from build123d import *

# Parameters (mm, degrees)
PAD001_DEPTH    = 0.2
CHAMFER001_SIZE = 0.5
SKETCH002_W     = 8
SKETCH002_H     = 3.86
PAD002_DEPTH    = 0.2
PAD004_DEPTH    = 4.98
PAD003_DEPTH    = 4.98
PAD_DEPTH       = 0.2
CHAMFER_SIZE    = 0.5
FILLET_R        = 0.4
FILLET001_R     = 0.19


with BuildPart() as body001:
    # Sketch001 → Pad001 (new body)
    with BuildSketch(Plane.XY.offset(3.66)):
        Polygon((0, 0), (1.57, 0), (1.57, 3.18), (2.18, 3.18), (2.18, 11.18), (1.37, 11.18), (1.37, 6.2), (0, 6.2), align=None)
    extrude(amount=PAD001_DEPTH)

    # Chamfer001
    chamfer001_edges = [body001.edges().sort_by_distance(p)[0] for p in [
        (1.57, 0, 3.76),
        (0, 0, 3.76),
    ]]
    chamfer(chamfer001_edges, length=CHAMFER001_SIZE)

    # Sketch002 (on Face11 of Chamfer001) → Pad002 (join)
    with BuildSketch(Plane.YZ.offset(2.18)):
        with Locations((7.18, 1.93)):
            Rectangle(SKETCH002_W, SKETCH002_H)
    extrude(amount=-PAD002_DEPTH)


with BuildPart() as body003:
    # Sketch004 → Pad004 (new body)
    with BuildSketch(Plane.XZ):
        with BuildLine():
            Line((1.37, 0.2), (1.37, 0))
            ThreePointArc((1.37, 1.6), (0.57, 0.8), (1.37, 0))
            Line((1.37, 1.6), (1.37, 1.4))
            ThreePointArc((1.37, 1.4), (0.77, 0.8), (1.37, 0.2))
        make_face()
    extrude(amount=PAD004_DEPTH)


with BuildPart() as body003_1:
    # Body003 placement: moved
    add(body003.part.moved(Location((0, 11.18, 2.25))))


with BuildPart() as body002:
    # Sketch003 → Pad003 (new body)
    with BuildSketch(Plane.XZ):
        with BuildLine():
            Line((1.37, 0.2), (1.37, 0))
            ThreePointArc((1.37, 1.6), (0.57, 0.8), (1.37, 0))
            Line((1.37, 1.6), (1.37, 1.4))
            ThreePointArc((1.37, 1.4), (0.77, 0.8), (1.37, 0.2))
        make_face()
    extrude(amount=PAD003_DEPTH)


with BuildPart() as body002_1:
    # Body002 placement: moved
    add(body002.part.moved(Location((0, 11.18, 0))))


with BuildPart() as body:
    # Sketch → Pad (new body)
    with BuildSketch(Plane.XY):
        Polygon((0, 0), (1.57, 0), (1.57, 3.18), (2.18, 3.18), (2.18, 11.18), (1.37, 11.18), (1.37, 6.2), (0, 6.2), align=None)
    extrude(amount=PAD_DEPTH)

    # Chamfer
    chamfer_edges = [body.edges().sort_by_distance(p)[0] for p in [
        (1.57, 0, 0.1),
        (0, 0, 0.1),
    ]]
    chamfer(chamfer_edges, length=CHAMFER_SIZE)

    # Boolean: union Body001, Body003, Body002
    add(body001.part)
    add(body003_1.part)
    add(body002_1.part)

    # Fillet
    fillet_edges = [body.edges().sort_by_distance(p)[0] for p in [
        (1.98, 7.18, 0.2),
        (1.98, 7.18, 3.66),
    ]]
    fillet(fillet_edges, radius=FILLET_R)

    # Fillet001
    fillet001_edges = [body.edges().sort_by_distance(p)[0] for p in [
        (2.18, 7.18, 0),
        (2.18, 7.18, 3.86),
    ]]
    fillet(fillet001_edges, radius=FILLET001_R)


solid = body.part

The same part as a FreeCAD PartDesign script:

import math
import FreeCAD as App
import Part
import Sketcher


def edges_at(feature, points):
    """Names of the edges that pass closest to the given points."""
    edges = feature.Shape.Edges
    near = lambda p: min(range(len(edges)), key=lambda i: edges[i].distToShape(Part.Vertex(*p))[0])
    return sorted({f"Edge{near(p) + 1}" for p in points})


def add_polygon(sketch, points):
    """Adds a closed chain of lines whose ends are joined by coincident constraints."""
    first, n = sketch.GeometryCount, len(points)
    for a, b in zip(points, points[1:] + points[:1]):
        sketch.addGeometry(Part.LineSegment(App.Vector(*a, 0), App.Vector(*b, 0)), False)
    for i in range(n):
        sketch.addConstraint(Sketcher.Constraint("Coincident", first + i, 2, first + (i + 1) % n, 1))

doc = App.newDocument("Part")
params = doc.addObject("Spreadsheet::Sheet", "Params")
for row, (alias, value) in enumerate([
    ("sketch1_height", "8 mm"),
    ("sketch1_height2", "6.2 mm"),
    ("sketch1_width", "1.57 mm"),
    ("sketch1_width2", "0.61 mm"),
    ("sketch1_width3", "0.81 mm"),
    ("pad1_length", "0.2 mm"),
    ("chamfer_size", "0.5 mm"),
    ("sketch2_width", "8 mm"),
    ("sketch2_height", "3.86 mm"),
    ("pad2_length", "0.2 mm"),
    ("sketch3_radius", "0.6 mm"),
    ("sketch3_radius2", "0.8 mm"),
    ("pad3_length", "4.98 mm"),
    ("sketch4_radius", "0.6 mm"),
    ("sketch4_radius2", "0.8 mm"),
    ("pad4_length", "4.98 mm"),
    ("sketch5_height", "8 mm"),
    ("sketch5_height2", "6.2 mm"),
    ("sketch5_width", "1.57 mm"),
    ("sketch5_width2", "0.61 mm"),
    ("sketch5_width3", "0.81 mm"),
    ("pad5_length", "0.2 mm"),
    ("chamfer2_size", "0.5 mm"),
    ("fillet_radius", "0.4 mm"),
    ("fillet2_radius", "0.19 mm"),
], start=1):
    params.set(f"A{row}", alias)
    params.set(f"B{row}", "=" + value)
    params.setAlias(f"B{row}", alias)

body = doc.addObject("PartDesign::Body", "Body")

# Sketch on XY plane
sketch1 = body.newObject("Sketcher::SketchObject", "Sketch")
sketch1.AttachmentSupport = (doc.getObject("XY_Plane"), [""])
sketch1.MapMode = "FlatFace"
sketch1.AttachmentOffset = App.Placement(App.Vector(0, 0, 3.66), App.Rotation())
add_polygon(sketch1, [(0, 0), (1.6, 0), (1.6, 3.2), (2.2, 3.2), (2.2, 11.2), (1.4, 11.2), (1.4, 6.2), (0, 6.2)])  # lines 0-7
sketch1.addConstraint(Sketcher.Constraint("Horizontal", 0))
sketch1.addConstraint(Sketcher.Constraint("Vertical", 1))
sketch1.addConstraint(Sketcher.Constraint("Horizontal", 2))
sketch1.addConstraint(Sketcher.Constraint("Vertical", 3))
sketch1.addConstraint(Sketcher.Constraint("Horizontal", 4))
sketch1.addConstraint(Sketcher.Constraint("Vertical", 5))
sketch1.addConstraint(Sketcher.Constraint("Horizontal", 6))
sketch1.addConstraint(Sketcher.Constraint("Vertical", 7))
sketch1.addConstraint(Sketcher.Constraint("Coincident", 7, 2, -1, 1))
sketch1.addConstraint(Sketcher.Constraint("DistanceY", 3, 1, 3, 2, 8.0))
sketch1.addConstraint(Sketcher.Constraint("DistanceY", 7, 2, 7, 1, 6.2))
sketch1.addConstraint(Sketcher.Constraint("DistanceX", 0, 1, 0, 2, 1.57))
sketch1.addConstraint(Sketcher.Constraint("DistanceX", 2, 1, 2, 2, 0.61))
sketch1.addConstraint(Sketcher.Constraint("DistanceX", 4, 2, 4, 1, 0.81))
sketch1.addConstraint(Sketcher.Constraint("DistanceY", 1, 1, 1, 2, 3.18))
sketch1.setExpression("Constraints[17]", "Params.sketch1_height")
sketch1.setExpression("Constraints[18]", "Params.sketch1_height2")
sketch1.setExpression("Constraints[19]", "Params.sketch1_width")
sketch1.setExpression("Constraints[20]", "Params.sketch1_width2")
sketch1.setExpression("Constraints[21]", "Params.sketch1_width3")
pad1 = body.newObject("PartDesign::Pad", "Pad")
pad1.Profile = sketch1
pad1.setExpression("Length", "Params.pad1_length")
doc.recompute()

chamfer = body.newObject("PartDesign::Chamfer", "Chamfer")
chamfer.Base = (pad1, edges_at(pad1, [(1.57, 0, 3.76), (0, 0, 3.76)]))
chamfer.setExpression("Size", "Params.chamfer_size")

# Sketch on YZ plane
sketch2 = body.newObject("Sketcher::SketchObject", "Sketch001")
sketch2.AttachmentSupport = (doc.getObject("YZ_Plane"), [""])
sketch2.MapMode = "FlatFace"
sketch2.AttachmentOffset = App.Placement(App.Vector(0, 0, 2.18), App.Rotation())
add_polygon(sketch2, [(3.2, 3.9), (3.2, 0), (11.2, 0), (11.2, 3.9)])  # lines 0-3
sketch2.addConstraint(Sketcher.Constraint("Vertical", 0))
sketch2.addConstraint(Sketcher.Constraint("Horizontal", 1))
sketch2.addConstraint(Sketcher.Constraint("Vertical", 2))
sketch2.addConstraint(Sketcher.Constraint("Horizontal", 3))
sketch2.addConstraint(Sketcher.Constraint("PointOnObject", 0, 2, -1))
sketch2.addConstraint(Sketcher.Constraint("DistanceX", 1, 1, 1, 2, 8.0))
sketch2.addConstraint(Sketcher.Constraint("DistanceY", 0, 2, 0, 1, 3.86))
sketch2.addConstraint(Sketcher.Constraint("DistanceX", -1, 1, 0, 2, 3.18))
sketch2.setExpression("Constraints[9]", "Params.sketch2_width")
sketch2.setExpression("Constraints[10]", "Params.sketch2_height")
pad2 = body.newObject("PartDesign::Pad", "Pad001")
pad2.Profile = sketch2
pad2.setExpression("Length", "Params.pad2_length")
pad2.Reversed = True
body2 = doc.addObject("PartDesign::Body", "Body001")

# Sketch on XZ plane
sketch3 = body2.newObject("Sketcher::SketchObject", "Sketch002")
sketch3.AttachmentSupport = (doc.getObject("XZ_Plane001"), [""])
sketch3.MapMode = "FlatFace"
sketch3.addGeometry(Part.LineSegment(App.Vector(1.37, 0, 0), App.Vector(1.37, 0.2, 0)), False)
sketch3.addGeometry(Part.ArcOfCircle(Part.Circle(App.Vector(1.37, 0.8, 0), App.Vector(0, 0, 1), 0.6), math.radians(90), math.radians(270)), False)
sketch3.addGeometry(Part.LineSegment(App.Vector(1.37, 1.4, 0), App.Vector(1.37, 1.6, 0)), False)
sketch3.addGeometry(Part.ArcOfCircle(Part.Circle(App.Vector(1.37, 0.8, 0), App.Vector(0, 0, 1), 0.8), math.radians(90), math.radians(270)), False)
sketch3.addConstraint(Sketcher.Constraint("Coincident", 0, 2, 1, 2))
sketch3.addConstraint(Sketcher.Constraint("Coincident", 1, 1, 2, 1))
sketch3.addConstraint(Sketcher.Constraint("Coincident", 2, 2, 3, 1))
sketch3.addConstraint(Sketcher.Constraint("Coincident", 3, 2, 0, 1))
sketch3.addConstraint(Sketcher.Constraint("Vertical", 0))
sketch3.addConstraint(Sketcher.Constraint("Vertical", 2))
sketch3.addConstraint(Sketcher.Constraint("Coincident", 3, 3, 1, 3))
sketch3.addConstraint(Sketcher.Constraint("PointOnObject", 3, 2, -1))
sketch3.addConstraint(Sketcher.Constraint("Vertical", 3, 3, 0, 2))
sketch3.addConstraint(Sketcher.Constraint("Vertical", 0, 2, 1, 1))
sketch3.addConstraint(Sketcher.Constraint("Radius", 1, 0.6))
sketch3.addConstraint(Sketcher.Constraint("Radius", 3, 0.8))
sketch3.addConstraint(Sketcher.Constraint("DistanceX", -1, 1, 1, 3, 1.37))
sketch3.setExpression("Constraints[10]", "Params.sketch3_radius")
sketch3.setExpression("Constraints[11]", "Params.sketch3_radius2")
pad3 = body2.newObject("PartDesign::Pad", "Pad002")
pad3.Profile = sketch3
pad3.setExpression("Length", "Params.pad3_length")
body3 = doc.addObject("PartDesign::Body", "Body002")
doc.recompute()

body2.Placement = App.Placement(App.Vector(0, 11.18, 2.25), App.Rotation(App.Vector(0, 0, 1), 0))
boolean = body3.newObject("PartDesign::Boolean", "Boolean")
boolean.Type = "Fuse"
boolean.addObjects([body2])
body4 = doc.addObject("PartDesign::Body", "Body003")

# Sketch on XZ plane
sketch4 = body4.newObject("Sketcher::SketchObject", "Sketch003")
sketch4.AttachmentSupport = (doc.getObject("XZ_Plane003"), [""])
sketch4.MapMode = "FlatFace"
sketch4.addGeometry(Part.LineSegment(App.Vector(1.37, 0, 0), App.Vector(1.37, 0.2, 0)), False)
sketch4.addGeometry(Part.ArcOfCircle(Part.Circle(App.Vector(1.37, 0.8, 0), App.Vector(0, 0, 1), 0.6), math.radians(90), math.radians(270)), False)
sketch4.addGeometry(Part.LineSegment(App.Vector(1.37, 1.4, 0), App.Vector(1.37, 1.6, 0)), False)
sketch4.addGeometry(Part.ArcOfCircle(Part.Circle(App.Vector(1.37, 0.8, 0), App.Vector(0, 0, 1), 0.8), math.radians(90), math.radians(270)), False)
sketch4.addConstraint(Sketcher.Constraint("Coincident", 0, 2, 1, 2))
sketch4.addConstraint(Sketcher.Constraint("Coincident", 1, 1, 2, 1))
sketch4.addConstraint(Sketcher.Constraint("Coincident", 2, 2, 3, 1))
sketch4.addConstraint(Sketcher.Constraint("Coincident", 3, 2, 0, 1))
sketch4.addConstraint(Sketcher.Constraint("Vertical", 0))
sketch4.addConstraint(Sketcher.Constraint("Vertical", 2))
sketch4.addConstraint(Sketcher.Constraint("Coincident", 3, 3, 1, 3))
sketch4.addConstraint(Sketcher.Constraint("PointOnObject", 3, 2, -1))
sketch4.addConstraint(Sketcher.Constraint("Vertical", 3, 3, 0, 2))
sketch4.addConstraint(Sketcher.Constraint("Vertical", 0, 2, 1, 1))
sketch4.addConstraint(Sketcher.Constraint("Radius", 1, 0.6))
sketch4.addConstraint(Sketcher.Constraint("Radius", 3, 0.8))
sketch4.addConstraint(Sketcher.Constraint("DistanceX", -1, 1, 1, 3, 1.37))
sketch4.setExpression("Constraints[10]", "Params.sketch4_radius")
sketch4.setExpression("Constraints[11]", "Params.sketch4_radius2")
pad4 = body4.newObject("PartDesign::Pad", "Pad003")
pad4.Profile = sketch4
pad4.setExpression("Length", "Params.pad4_length")
body5 = doc.addObject("PartDesign::Body", "Body004")
doc.recompute()

body4.Placement = App.Placement(App.Vector(0, 11.18, 0), App.Rotation(App.Vector(0, 0, 1), 0))
boolean2 = body5.newObject("PartDesign::Boolean", "Boolean001")
boolean2.Type = "Fuse"
boolean2.addObjects([body4])
body6 = doc.addObject("PartDesign::Body", "Body005")

# Sketch on XY plane
sketch5 = body6.newObject("Sketcher::SketchObject", "Sketch004")
sketch5.AttachmentSupport = (doc.getObject("XY_Plane005"), [""])
sketch5.MapMode = "FlatFace"
add_polygon(sketch5, [(0, 0), (1.6, 0), (1.6, 3.2), (2.2, 3.2), (2.2, 11.2), (1.4, 11.2), (1.4, 6.2), (0, 6.2)])  # lines 0-7
sketch5.addConstraint(Sketcher.Constraint("Horizontal", 0))
sketch5.addConstraint(Sketcher.Constraint("Vertical", 1))
sketch5.addConstraint(Sketcher.Constraint("Horizontal", 2))
sketch5.addConstraint(Sketcher.Constraint("Vertical", 3))
sketch5.addConstraint(Sketcher.Constraint("Horizontal", 4))
sketch5.addConstraint(Sketcher.Constraint("Vertical", 5))
sketch5.addConstraint(Sketcher.Constraint("Horizontal", 6))
sketch5.addConstraint(Sketcher.Constraint("Vertical", 7))
sketch5.addConstraint(Sketcher.Constraint("Coincident", 7, 2, -1, 1))
sketch5.addConstraint(Sketcher.Constraint("DistanceY", 3, 1, 3, 2, 8.0))
sketch5.addConstraint(Sketcher.Constraint("DistanceY", 7, 2, 7, 1, 6.2))
sketch5.addConstraint(Sketcher.Constraint("DistanceX", 0, 1, 0, 2, 1.57))
sketch5.addConstraint(Sketcher.Constraint("DistanceX", 2, 1, 2, 2, 0.61))
sketch5.addConstraint(Sketcher.Constraint("DistanceX", 4, 2, 4, 1, 0.81))
sketch5.addConstraint(Sketcher.Constraint("DistanceY", 1, 1, 1, 2, 3.18))
sketch5.setExpression("Constraints[17]", "Params.sketch5_height")
sketch5.setExpression("Constraints[18]", "Params.sketch5_height2")
sketch5.setExpression("Constraints[19]", "Params.sketch5_width")
sketch5.setExpression("Constraints[20]", "Params.sketch5_width2")
sketch5.setExpression("Constraints[21]", "Params.sketch5_width3")
pad5 = body6.newObject("PartDesign::Pad", "Pad004")
pad5.Profile = sketch5
pad5.setExpression("Length", "Params.pad5_length")
doc.recompute()

chamfer2 = body6.newObject("PartDesign::Chamfer", "Chamfer001")
chamfer2.Base = (pad5, edges_at(pad5, [(1.57, 0, 0.1), (0, 0, 0.1)]))
chamfer2.setExpression("Size", "Params.chamfer2_size")
doc.recompute()

boolean3 = body6.newObject("PartDesign::Boolean", "Boolean002")
boolean3.Type = "Fuse"
boolean3.addObjects([body])
doc.recompute()

boolean4 = body6.newObject("PartDesign::Boolean", "Boolean003")
boolean4.Type = "Fuse"
boolean4.addObjects([body3])
doc.recompute()

boolean5 = body6.newObject("PartDesign::Boolean", "Boolean004")
boolean5.Type = "Fuse"
boolean5.addObjects([body5])
doc.recompute()

fillet = body6.newObject("PartDesign::Fillet", "Fillet")
fillet.Base = (boolean5, edges_at(boolean5, [(1.98, 7.18, 0.2), (1.98, 7.18, 3.66)]))
fillet.setExpression("Radius", "Params.fillet_radius")
doc.recompute()

fillet2 = body6.newObject("PartDesign::Fillet", "Fillet001")
fillet2.Base = (fillet, edges_at(fillet, [(2.18, 7.18, 0), (2.18, 7.18, 3.86)]))
fillet2.setExpression("Radius", "Params.fillet2_radius")

doc.recompute()
